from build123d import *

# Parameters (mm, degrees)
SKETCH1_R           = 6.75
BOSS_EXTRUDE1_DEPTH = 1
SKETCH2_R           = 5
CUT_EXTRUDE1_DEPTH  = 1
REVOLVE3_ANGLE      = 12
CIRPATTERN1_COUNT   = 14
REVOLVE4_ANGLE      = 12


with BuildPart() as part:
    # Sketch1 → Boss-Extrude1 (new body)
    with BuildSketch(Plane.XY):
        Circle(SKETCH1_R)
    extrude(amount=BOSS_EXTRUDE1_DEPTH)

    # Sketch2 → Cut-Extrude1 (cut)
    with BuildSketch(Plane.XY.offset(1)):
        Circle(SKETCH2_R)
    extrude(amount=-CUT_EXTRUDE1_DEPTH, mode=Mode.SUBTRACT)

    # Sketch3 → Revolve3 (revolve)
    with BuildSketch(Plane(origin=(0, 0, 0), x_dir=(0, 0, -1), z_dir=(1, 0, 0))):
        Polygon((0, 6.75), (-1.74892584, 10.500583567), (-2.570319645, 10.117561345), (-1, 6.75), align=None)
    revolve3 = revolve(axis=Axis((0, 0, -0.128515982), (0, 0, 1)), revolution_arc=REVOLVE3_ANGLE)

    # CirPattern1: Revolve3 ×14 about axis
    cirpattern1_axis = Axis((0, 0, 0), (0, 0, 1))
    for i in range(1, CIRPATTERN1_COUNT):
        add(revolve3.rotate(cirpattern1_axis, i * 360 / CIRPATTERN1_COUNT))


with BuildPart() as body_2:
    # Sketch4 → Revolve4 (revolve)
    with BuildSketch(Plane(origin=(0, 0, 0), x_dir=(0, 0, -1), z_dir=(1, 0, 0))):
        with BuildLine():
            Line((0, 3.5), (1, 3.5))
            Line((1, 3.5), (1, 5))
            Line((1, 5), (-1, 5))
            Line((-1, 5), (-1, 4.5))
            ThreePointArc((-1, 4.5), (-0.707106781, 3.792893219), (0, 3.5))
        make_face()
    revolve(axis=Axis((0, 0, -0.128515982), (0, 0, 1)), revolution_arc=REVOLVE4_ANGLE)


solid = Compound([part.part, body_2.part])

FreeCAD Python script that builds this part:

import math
import FreeCAD as App
import Part
import Sketcher
Q = App.Units.Quantity


def add_polygon(sketch, points):
    """Adds a closed chain of lines whose ends are joined by coincident constraints."""
    first, n = sketch.GeometryCount, len(points)
    for a, b in zip(points, points[1:] + points[:1]):
        sketch.addGeometry(Part.LineSegment(App.Vector(*a, 0), App.Vector(*b, 0)), False)
    for i in range(n):
        sketch.addConstraint(Sketcher.Constraint("Coincident", first + i, 2, first + (i + 1) % n, 1))

doc = App.newDocument("Part")
body = doc.addObject("PartDesign::Body", "Body")

sketch1 = body.newObject("Sketcher::SketchObject", "Sketch")
sketch1.AttachmentSupport = (doc.getObject("XY_Plane"), [""])
sketch1.MapMode = "FlatFace"
sketch1.addGeometry(Part.Circle(App.Vector(0, 0, 0), App.Vector(0, 0, 1), 6.75), False)
sketch1.addConstraint(Sketcher.Constraint("Coincident", 0, 3, -1, 1))
sketch1.addConstraint(Sketcher.Constraint("Diameter", 0, Q("13.5 mm")))
pad1 = body.newObject("PartDesign::Pad", "Pad")
pad1.Profile = sketch1
pad1.Length = 1

sketch2 = body.newObject("Sketcher::SketchObject", "Sketch001")
sketch2.AttachmentSupport = (doc.getObject("XY_Plane"), [""])
sketch2.MapMode = "FlatFace"
sketch2.AttachmentOffset = App.Placement(App.Vector(0, 0, 1), App.Rotation())
sketch2.addGeometry(Part.Circle(App.Vector(0, 0, 0), App.Vector(0, 0, 1), 5), False)
sketch2.addConstraint(Sketcher.Constraint("Coincident", 0, 3, -1, 1))
sketch2.addConstraint(Sketcher.Constraint("Diameter", 0, Q("10 mm")))
pocket1 = body.newObject("PartDesign::Pocket", "Pocket")
pocket1.Profile = sketch2
pocket1.Length = 1

sketch3 = body.newObject("Sketcher::SketchObject", "Sketch002")
sketch3.AttachmentSupport = (doc.getObject("YZ_Plane"), [""])
sketch3.MapMode = "FlatFace"
add_polygon(sketch3, [(6.75, 0), (10.500584, 1.748926), (10.117561, 2.57032), (6.75, 1)])
sketch3.addConstraint(Sketcher.Constraint("Vertical", 3))
sketch3.addConstraint(Sketcher.Constraint("PointOnObject", 3, 2, -1))
sketch3.addConstraint(Sketcher.Constraint("Perpendicular", 0, 1))
sketch3.addConstraint(Sketcher.Constraint("Perpendicular", 1, 2))
sketch3.addConstraint(Sketcher.Constraint("DistanceY", 3, 2, 3, 1, Q("1 mm")))
sketch3.addConstraint(Sketcher.Constraint("Angle", 0, Q("25 deg")))
sketch3.addConstraint(Sketcher.Constraint("DistanceX", -1, 1, 2, 2, Q("6.75 mm")))
sketch3.addConstraint(Sketcher.Constraint("Distance", 0, Q("4.138311 mm")))
revolution = body.newObject("PartDesign::Revolution", "Revolution")
revolution.Profile = sketch3
revolution.ReferenceAxis = (sketch3, ["V_Axis"])
revolution.Angle = 12
doc.recompute()

polarpattern = body.newObject("PartDesign::PolarPattern", "PolarPattern")
polarpattern.Originals = [revolution]
polarpattern.Axis = (doc.getObject("Z_Axis"), [""])
polarpattern.Angle = 360
polarpattern.Occurrences = 14
body.Tip = polarpattern
body2 = doc.addObject("PartDesign::Body", "Body001")

sketch4 = body2.newObject("Sketcher::SketchObject", "Sketch003")
sketch4.AttachmentSupport = (doc.getObject("YZ_Plane001"), [""])
sketch4.MapMode = "FlatFace"
sketch4.addGeometry(Part.LineSegment(App.Vector(3.5, 0, 0), App.Vector(3.5, -1, 0)), False)
sketch4.addGeometry(Part.LineSegment(App.Vector(3.5, -1, 0), App.Vector(5, -1, 0)), False)
sketch4.addGeometry(Part.LineSegment(App.Vector(5, -1, 0), App.Vector(5, 1, 0)), False)
sketch4.addGeometry(Part.LineSegment(App.Vector(5, 1, 0), App.Vector(4.5, 1, 0)), False)
sketch4.addGeometry(Part.ArcOfCircle(Part.Circle(App.Vector(4.5, 0, 0), App.Vector(0, 0, 1), 1), math.radians(90), math.radians(180)), False)
sketch4.addConstraint(Sketcher.Constraint("Coincident", 0, 2, 1, 1))
sketch4.addConstraint(Sketcher.Constraint("Coincident", 1, 2, 2, 1))
sketch4.addConstraint(Sketcher.Constraint("Coincident", 2, 2, 3, 1))
sketch4.addConstraint(Sketcher.Constraint("Tangent", 3, 2, 4, 1))
sketch4.addConstraint(Sketcher.Constraint("Tangent", 4, 2, 0, 1))
sketch4.addConstraint(Sketcher.Constraint("Vertical", 0))
sketch4.addConstraint(Sketcher.Constraint("Horizontal", 1))
sketch4.addConstraint(Sketcher.Constraint("Vertical", 2))
sketch4.addConstraint(Sketcher.Constraint("Horizontal", 3))
sketch4.addConstraint(Sketcher.Constraint("PointOnObject", 4, 3, -1))
sketch4.addConstraint(Sketcher.Constraint("Radius", 4, Q("1 mm")))
sketch4.addConstraint(Sketcher.Constraint("DistanceY", 0, 2, 0, 1, Q("1 mm")))
sketch4.addConstraint(Sketcher.Constraint("DistanceX", 1, 1, 1, 2, Q("1.5 mm")))
sketch4.addConstraint(Sketcher.Constraint("DistanceX", -1, 1, 1, 2, Q("5 mm")))
revolution2 = body2.newObject("PartDesign::Revolution", "Revolution001")
revolution2.Profile = sketch4
revolution2.ReferenceAxis = (sketch4, ["V_Axis"])
revolution2.Angle = 12

doc.recompute()
